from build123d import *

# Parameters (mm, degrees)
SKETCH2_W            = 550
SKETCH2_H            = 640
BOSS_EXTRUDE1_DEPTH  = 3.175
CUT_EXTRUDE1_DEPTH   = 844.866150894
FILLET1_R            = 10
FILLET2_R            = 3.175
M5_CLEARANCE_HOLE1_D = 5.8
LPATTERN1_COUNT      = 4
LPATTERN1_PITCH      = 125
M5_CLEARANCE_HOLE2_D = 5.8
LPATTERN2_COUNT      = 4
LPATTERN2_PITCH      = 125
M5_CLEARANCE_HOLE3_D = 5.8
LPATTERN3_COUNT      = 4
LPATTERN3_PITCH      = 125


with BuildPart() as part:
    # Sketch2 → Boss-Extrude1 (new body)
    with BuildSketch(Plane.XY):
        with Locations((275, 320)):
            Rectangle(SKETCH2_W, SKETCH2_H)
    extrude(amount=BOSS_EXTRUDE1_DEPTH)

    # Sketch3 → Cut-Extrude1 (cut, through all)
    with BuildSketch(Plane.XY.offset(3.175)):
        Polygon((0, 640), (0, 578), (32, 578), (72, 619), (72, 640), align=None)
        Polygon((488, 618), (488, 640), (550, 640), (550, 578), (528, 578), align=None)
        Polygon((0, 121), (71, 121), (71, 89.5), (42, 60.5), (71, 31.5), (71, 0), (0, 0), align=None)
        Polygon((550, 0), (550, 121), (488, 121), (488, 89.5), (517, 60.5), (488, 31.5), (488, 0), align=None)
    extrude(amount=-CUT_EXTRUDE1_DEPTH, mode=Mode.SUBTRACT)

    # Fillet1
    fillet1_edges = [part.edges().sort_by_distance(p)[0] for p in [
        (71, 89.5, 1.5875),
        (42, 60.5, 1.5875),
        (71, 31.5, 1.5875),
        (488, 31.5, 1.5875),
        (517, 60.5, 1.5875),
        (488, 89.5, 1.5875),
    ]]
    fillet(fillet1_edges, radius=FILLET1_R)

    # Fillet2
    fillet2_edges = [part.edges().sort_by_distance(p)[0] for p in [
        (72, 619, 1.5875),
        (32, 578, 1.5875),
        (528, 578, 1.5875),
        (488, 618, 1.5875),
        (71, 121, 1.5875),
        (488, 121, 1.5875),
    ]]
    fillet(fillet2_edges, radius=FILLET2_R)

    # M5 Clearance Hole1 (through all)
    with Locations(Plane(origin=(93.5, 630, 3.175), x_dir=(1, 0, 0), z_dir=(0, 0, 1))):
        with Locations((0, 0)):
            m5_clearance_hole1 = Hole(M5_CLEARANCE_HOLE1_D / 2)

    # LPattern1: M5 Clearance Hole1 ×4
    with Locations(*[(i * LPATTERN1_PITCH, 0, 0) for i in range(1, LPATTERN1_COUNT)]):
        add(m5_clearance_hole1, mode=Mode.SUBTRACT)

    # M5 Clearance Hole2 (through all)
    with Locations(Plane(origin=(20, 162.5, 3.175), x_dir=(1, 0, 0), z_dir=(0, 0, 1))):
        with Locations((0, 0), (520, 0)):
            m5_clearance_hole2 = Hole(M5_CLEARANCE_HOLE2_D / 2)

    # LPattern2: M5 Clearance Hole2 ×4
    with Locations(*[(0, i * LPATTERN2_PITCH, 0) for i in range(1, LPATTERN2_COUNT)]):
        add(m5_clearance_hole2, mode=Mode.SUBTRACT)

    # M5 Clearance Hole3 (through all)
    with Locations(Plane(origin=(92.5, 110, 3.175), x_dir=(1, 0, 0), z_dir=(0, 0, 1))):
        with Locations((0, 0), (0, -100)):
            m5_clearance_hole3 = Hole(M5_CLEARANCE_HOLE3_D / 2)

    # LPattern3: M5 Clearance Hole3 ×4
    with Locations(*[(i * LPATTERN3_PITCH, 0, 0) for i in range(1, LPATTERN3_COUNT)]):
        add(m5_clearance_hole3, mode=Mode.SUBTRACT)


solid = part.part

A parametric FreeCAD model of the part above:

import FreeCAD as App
import Part
import Sketcher

V = App.Vector


def edges_at(feature, points):
    """Names of the edges that pass closest to the given points."""
    edges = feature.Shape.Edges
    near = lambda p: min(range(len(edges)), key=lambda i: edges[i].distToShape(Part.Vertex(*p))[0])
    return sorted({f"Edge{near(p) + 1}" for p in points})

doc = App.newDocument("Part")
body = doc.addObject("PartDesign::Body", "Body")

sketch1 = body.newObject("Sketcher::SketchObject", "Sketch")
sketch1.AttachmentSupport = (doc.getObject("XY_Plane"), [""])
sketch1.MapMode = "FlatFace"
sketch1.addGeometry([
    Part.LineSegment(V(0, 640, 0), V(0, 0, 0)),
    Part.LineSegment(V(0, 0, 0), V(550, 0, 0)),
    Part.LineSegment(V(550, 0, 0), V(550, 640, 0)),
    Part.LineSegment(V(550, 640, 0), V(0, 640, 0)),
], False)
sketch1.addConstraint([
    Sketcher.Constraint("Coincident", 0, 2, 1, 1),
    Sketcher.Constraint("Coincident", 1, 2, 2, 1),
    Sketcher.Constraint("Coincident", 2, 2, 3, 1),
    Sketcher.Constraint("Coincident", 3, 2, 0, 1),
    Sketcher.Constraint("Vertical", 0),
    Sketcher.Constraint("Horizontal", 1),
    Sketcher.Constraint("Vertical", 2),
    Sketcher.Constraint("Horizontal", 3),
    Sketcher.Constraint("Coincident", 0, 2, -1, 1),
    Sketcher.Constraint("DistanceX", 1, 1, 1, 2, 550.0),
    Sketcher.Constraint("DistanceY", 0, 2, 0, 1, 640.0),
])
pad1 = body.newObject("PartDesign::Pad", "Pad")
pad1.Profile = sketch1
pad1.Length = 3.175

sketch2 = body.newObject("Sketcher::SketchObject", "Sketch001")
sketch2.AttachmentSupport = (doc.getObject("XY_Plane"), [""])
sketch2.MapMode = "FlatFace"
sketch2.AttachmentOffset = App.Placement(V(0, 0, 3.175), App.Rotation())
sketch2.addGeometry([
    Part.LineSegment(V(0, 640, 0), V(0, 578, 0)),
    Part.LineSegment(V(0, 578, 0), V(32, 578, 0)),
    Part.LineSegment(V(32, 578, 0), V(72, 619, 0)),
    Part.LineSegment(V(72, 619, 0), V(72, 640, 0)),
    Part.LineSegment(V(72, 640, 0), V(0, 640, 0)),
    Part.LineSegment(V(488, 640, 0), V(488, 618, 0)),
    Part.LineSegment(V(488, 618, 0), V(528, 578, 0)),
    Part.LineSegment(V(528, 578, 0), V(550, 578, 0)),
    Part.LineSegment(V(550, 578, 0), V(550, 640, 0)),
    Part.LineSegment(V(550, 640, 0), V(488, 640, 0)),
    Part.LineSegment(V(71, 121, 0), V(0, 121, 0)),
    Part.LineSegment(V(0, 121, 0), V(0, 0, 0)),
    Part.LineSegment(V(0, 0, 0), V(71, 0, 0)),
    Part.LineSegment(V(71, 0, 0), V(71, 31.5, 0)),
    Part.LineSegment(V(71, 31.5, 0), V(42, 60.5, 0)),
    Part.LineSegment(V(42, 60.5, 0), V(71, 89.5, 0)),
    Part.LineSegment(V(71, 89.5, 0), V(71, 121, 0)),
    Part.LineSegment(V(550, 0, 0), V(550, 121, 0)),
    Part.LineSegment(V(550, 121, 0), V(488, 121, 0)),
    Part.LineSegment(V(488, 121, 0), V(488, 89.5, 0)),
    Part.LineSegment(V(488, 89.5, 0), V(517, 60.5, 0)),
    Part.LineSegment(V(517, 60.5, 0), V(488, 31.5, 0)),
    Part.LineSegment(V(488, 31.5, 0), V(488, 0, 0)),
    Part.LineSegment(V(488, 0, 0), V(550, 0, 0)),
], False)
sketch2.addConstraint([
    Sketcher.Constraint("Coincident", 0, 2, 1, 1),
    Sketcher.Constraint("Coincident", 1, 2, 2, 1),
    Sketcher.Constraint("Coincident", 2, 2, 3, 1),
    Sketcher.Constraint("Coincident", 3, 2, 4, 1),
    Sketcher.Constraint("Coincident", 4, 2, 0, 1),
    Sketcher.Constraint("Coincident", 5, 2, 6, 1),
    Sketcher.Constraint("Coincident", 6, 2, 7, 1),
    Sketcher.Constraint("Coincident", 7, 2, 8, 1),
    Sketcher.Constraint("Coincident", 8, 2, 9, 1),
    Sketcher.Constraint("Coincident", 9, 2, 5, 1),
    Sketcher.Constraint("Coincident", 10, 2, 11, 1),
    Sketcher.Constraint("Coincident", 11, 2, 12, 1),
    Sketcher.Constraint("Coincident", 12, 2, 13, 1),
    Sketcher.Constraint("Coincident", 13, 2, 14, 1),
    Sketcher.Constraint("Coincident", 14, 2, 15, 1),
    Sketcher.Constraint("Coincident", 15, 2, 16, 1),
    Sketcher.Constraint("Coincident", 16, 2, 10, 1),
    Sketcher.Constraint("Coincident", 17, 2, 18, 1),
    Sketcher.Constraint("Coincident", 18, 2, 19, 1),
    Sketcher.Constraint("Coincident", 19, 2, 20, 1),
    Sketcher.Constraint("Coincident", 20, 2, 21, 1),
    Sketcher.Constraint("Coincident", 21, 2, 22, 1),
    Sketcher.Constraint("Coincident", 22, 2, 23, 1),
    Sketcher.Constraint("Coincident", 23, 2, 17, 1),
    Sketcher.Constraint("Vertical", 0),
    Sketcher.Constraint("Horizontal", 1),
    Sketcher.Constraint("Vertical", 3),
    Sketcher.Constraint("Horizontal", 4),
    Sketcher.Constraint("Vertical", 5),
    Sketcher.Constraint("Horizontal", 7),
    Sketcher.Constraint("Vertical", 8),
    Sketcher.Constraint("Horizontal", 9),
    Sketcher.Constraint("Horizontal", 10),
    Sketcher.Constraint("Vertical", 11),
    Sketcher.Constraint("Horizontal", 12),
    Sketcher.Constraint("Vertical", 13),
    Sketcher.Constraint("Vertical", 16),
    Sketcher.Constraint("Vertical", 17),
    Sketcher.Constraint("Horizontal", 18),
    Sketcher.Constraint("Vertical", 19),
    Sketcher.Constraint("Vertical", 22),
    Sketcher.Constraint("Horizontal", 23),
    Sketcher.Constraint("Coincident", 11, 2, -1, 1),
    Sketcher.Constraint("PointOnObject", 0, 2, -2),
    Sketcher.Constraint("PointOnObject", 22, 2, -1),
    Sketcher.Constraint("Parallel", 6, 14),
    Sketcher.Constraint("Perpendicular", 14, 15),
    Sketcher.Constraint("Perpendicular", 15, 20),
    Sketcher.Constraint("Perpendicular", 20, 21),
    Sketcher.Constraint("Horizontal", 1, 2, 6, 2),
    Sketcher.Constraint("Horizontal", 4, 2, 8, 2),
    Sketcher.Constraint("Horizontal", 16, 2, 17, 2),
    Sketcher.Constraint("Horizontal", 15, 2, 19, 2),
    Sketcher.Constraint("Horizontal", 14, 2, 20, 2),
    Sketcher.Constraint("Horizontal", 13, 2, 21, 2),
    Sketcher.Constraint("Vertical", 13, 2, 15, 2),
    Sketcher.Constraint("Vertical", 8, 2, 17, 2),
    Sketcher.Constraint("Vertical", 9, 2, 18, 2),
    Sketcher.Constraint("Vertical", 19, 2, 21, 2),
    Sketcher.Constraint("Equal", 23, 0),
    Sketcher.Constraint("Equal", 13, 16),
    Sketcher.Constraint("DistanceX", 1, 1, 1, 2, 32.0),
    Sketcher.Constraint("DistanceX", 4, 2, 4, 1, 72.0),
    Sketcher.Constraint("DistanceX", 7, 1, 7, 2, 22.0),
    Sketcher.Constraint("DistanceX", 9, 2, 9, 1, 62.0),
    Sketcher.Constraint("DistanceX", 10, 2, 10, 1, 71.0),
    Sketcher.Constraint("DistanceY", 3, 1, 3, 2, 21.0),
    Sketcher.Constraint("DistanceY", 11, 2, 11, 1, 121.0),
    Sketcher.Constraint("DistanceY", 13, 1, 13, 2, 31.5),
    Sketcher.Constraint("DistanceY", -1, 1, 0, 2, 578.0),
    Sketcher.Constraint("DistanceX", -1, 1, 5, 2, 488.0),
])
pocket1 = body.newObject("PartDesign::Pocket", "Pocket")
pocket1.Profile = sketch2
pocket1.Type = "ThroughAll"
doc.recompute()

fillet = body.newObject("PartDesign::Fillet", "Fillet")
fillet.Base = (pocket1, edges_at(pocket1, [
    (71, 89.5, 1.587),
    (42, 60.5, 1.587),
    (71, 31.5, 1.587),
    (488, 31.5, 1.587),
    (517, 60.5, 1.587),
    (488, 89.5, 1.587),
]))
fillet.Radius = 10
doc.recompute()

fillet2 = body.newObject("PartDesign::Fillet", "Fillet001")
fillet2.Base = (fillet, edges_at(fillet, [
    (72, 619, 1.587),
    (32, 578, 1.587),
    (528, 578, 1.587),
    (488, 618, 1.587),
    (71, 121, 1.587),
    (488, 121, 1.587),
]))
fillet2.Radius = 3.175

sketch3 = body.newObject("Sketcher::SketchObject", "Sketch002")
sketch3.AttachmentSupport = (doc.getObject("XY_Plane"), [""])
sketch3.MapMode = "FlatFace"
sketch3.AttachmentOffset = App.Placement(V(0, 0, 3.175), App.Rotation())
sketch3.addGeometry(Part.Circle(V(93.5, 630, 0), V(0, 0, 1), 2.9), False)
sketch3.addConstraint([
    Sketcher.Constraint("Diameter", 0, 5.8),
    Sketcher.Constraint("DistanceY", -1, 1, 0, 3, 630.0),
    Sketcher.Constraint("DistanceX", -1, 1, 0, 3, 93.5),
])
doc.recompute()
hole = body.newObject("PartDesign::Hole", "Hole")
hole.Profile = sketch3
hole.ThreadType = "None"
hole.Diameter = 5.8
hole.DepthType = "ThroughAll"
doc.recompute()

linearpattern = body.newObject("PartDesign::LinearPattern", "LinearPattern")
linearpattern.Originals = [hole]
linearpattern.Direction = (doc.getObject("X_Axis"), [""])
linearpattern.Mode = "offset"
linearpattern.Offset = 125
linearpattern.Occurrences = 4
body.Tip = linearpattern

sketch4 = body.newObject("Sketcher::SketchObject", "Sketch003")
sketch4.AttachmentSupport = (doc.getObject("XY_Plane"), [""])
sketch4.MapMode = "FlatFace"
sketch4.AttachmentOffset = App.Placement(V(0, 0, 3.175), App.Rotation())
sketch4.addGeometry([
    Part.Circle(V(20, 162.5, 0), V(0, 0, 1), 2.9),
    Part.Circle(V(540, 162.5, 0), V(0, 0, 1), 2.9),
], False)
sketch4.addConstraint([
    Sketcher.Constraint("Equal", 0, 1),
    Sketcher.Constraint("Horizontal", 0, 3, 1, 3),
    Sketcher.Constraint("Diameter", 0, 5.8),
    Sketcher.Constraint("DistanceX", -1, 1, 0, 3, 20.0),
    Sketcher.Constraint("DistanceX", -1, 1, 1, 3, 540.0),
    Sketcher.Constraint("DistanceY", -1, 1, 0, 3, 162.5),
])
doc.recompute()
hole2 = body.newObject("PartDesign::Hole", "Hole001")
hole2.Profile = sketch4
hole2.ThreadType = "None"
hole2.Diameter = 5.8
hole2.DepthType = "ThroughAll"
doc.recompute()

linearpattern2 = body.newObject("PartDesign::LinearPattern", "LinearPattern001")
linearpattern2.Originals = [hole2]
linearpattern2.Direction = (doc.getObject("Y_Axis"), [""])
linearpattern2.Mode = "offset"
linearpattern2.Offset = 125
linearpattern2.Occurrences = 4
body.Tip = linearpattern2

sketch5 = body.newObject("Sketcher::SketchObject", "Sketch004")
sketch5.AttachmentSupport = (doc.getObject("XY_Plane"), [""])
sketch5.MapMode = "FlatFace"
sketch5.AttachmentOffset = App.Placement(V(0, 0, 3.175), App.Rotation())
sketch5.addGeometry([
    Part.Circle(V(92.5, 110, 0), V(0, 0, 1), 2.9),
    Part.Circle(V(92.5, 10, 0), V(0, 0, 1), 2.9),
], False)
sketch5.addConstraint([
    Sketcher.Constraint("Equal", 0, 1),
    Sketcher.Constraint("Vertical", 0, 3, 1, 3),
    Sketcher.Constraint("Diameter", 0, 5.8),
    Sketcher.Constraint("DistanceY", -1, 1, 0, 3, 110.0),
    Sketcher.Constraint("DistanceY", -1, 1, 1, 3, 10.0),
    Sketcher.Constraint("DistanceX", -1, 1, 0, 3, 92.5),
])
doc.recompute()
hole3 = body.newObject("PartDesign::Hole", "Hole002")
hole3.Profile = sketch5
hole3.ThreadType = "None"
hole3.Diameter = 5.8
hole3.DepthType = "ThroughAll"
doc.recompute()

linearpattern3 = body.newObject("PartDesign::LinearPattern", "LinearPattern002")
linearpattern3.Originals = [hole3]
linearpattern3.Direction = (doc.getObject("X_Axis"), [""])
linearpattern3.Mode = "offset"
linearpattern3.Offset = 125
linearpattern3.Occurrences = 4
body.Tip = linearpattern3

doc.recompute()
